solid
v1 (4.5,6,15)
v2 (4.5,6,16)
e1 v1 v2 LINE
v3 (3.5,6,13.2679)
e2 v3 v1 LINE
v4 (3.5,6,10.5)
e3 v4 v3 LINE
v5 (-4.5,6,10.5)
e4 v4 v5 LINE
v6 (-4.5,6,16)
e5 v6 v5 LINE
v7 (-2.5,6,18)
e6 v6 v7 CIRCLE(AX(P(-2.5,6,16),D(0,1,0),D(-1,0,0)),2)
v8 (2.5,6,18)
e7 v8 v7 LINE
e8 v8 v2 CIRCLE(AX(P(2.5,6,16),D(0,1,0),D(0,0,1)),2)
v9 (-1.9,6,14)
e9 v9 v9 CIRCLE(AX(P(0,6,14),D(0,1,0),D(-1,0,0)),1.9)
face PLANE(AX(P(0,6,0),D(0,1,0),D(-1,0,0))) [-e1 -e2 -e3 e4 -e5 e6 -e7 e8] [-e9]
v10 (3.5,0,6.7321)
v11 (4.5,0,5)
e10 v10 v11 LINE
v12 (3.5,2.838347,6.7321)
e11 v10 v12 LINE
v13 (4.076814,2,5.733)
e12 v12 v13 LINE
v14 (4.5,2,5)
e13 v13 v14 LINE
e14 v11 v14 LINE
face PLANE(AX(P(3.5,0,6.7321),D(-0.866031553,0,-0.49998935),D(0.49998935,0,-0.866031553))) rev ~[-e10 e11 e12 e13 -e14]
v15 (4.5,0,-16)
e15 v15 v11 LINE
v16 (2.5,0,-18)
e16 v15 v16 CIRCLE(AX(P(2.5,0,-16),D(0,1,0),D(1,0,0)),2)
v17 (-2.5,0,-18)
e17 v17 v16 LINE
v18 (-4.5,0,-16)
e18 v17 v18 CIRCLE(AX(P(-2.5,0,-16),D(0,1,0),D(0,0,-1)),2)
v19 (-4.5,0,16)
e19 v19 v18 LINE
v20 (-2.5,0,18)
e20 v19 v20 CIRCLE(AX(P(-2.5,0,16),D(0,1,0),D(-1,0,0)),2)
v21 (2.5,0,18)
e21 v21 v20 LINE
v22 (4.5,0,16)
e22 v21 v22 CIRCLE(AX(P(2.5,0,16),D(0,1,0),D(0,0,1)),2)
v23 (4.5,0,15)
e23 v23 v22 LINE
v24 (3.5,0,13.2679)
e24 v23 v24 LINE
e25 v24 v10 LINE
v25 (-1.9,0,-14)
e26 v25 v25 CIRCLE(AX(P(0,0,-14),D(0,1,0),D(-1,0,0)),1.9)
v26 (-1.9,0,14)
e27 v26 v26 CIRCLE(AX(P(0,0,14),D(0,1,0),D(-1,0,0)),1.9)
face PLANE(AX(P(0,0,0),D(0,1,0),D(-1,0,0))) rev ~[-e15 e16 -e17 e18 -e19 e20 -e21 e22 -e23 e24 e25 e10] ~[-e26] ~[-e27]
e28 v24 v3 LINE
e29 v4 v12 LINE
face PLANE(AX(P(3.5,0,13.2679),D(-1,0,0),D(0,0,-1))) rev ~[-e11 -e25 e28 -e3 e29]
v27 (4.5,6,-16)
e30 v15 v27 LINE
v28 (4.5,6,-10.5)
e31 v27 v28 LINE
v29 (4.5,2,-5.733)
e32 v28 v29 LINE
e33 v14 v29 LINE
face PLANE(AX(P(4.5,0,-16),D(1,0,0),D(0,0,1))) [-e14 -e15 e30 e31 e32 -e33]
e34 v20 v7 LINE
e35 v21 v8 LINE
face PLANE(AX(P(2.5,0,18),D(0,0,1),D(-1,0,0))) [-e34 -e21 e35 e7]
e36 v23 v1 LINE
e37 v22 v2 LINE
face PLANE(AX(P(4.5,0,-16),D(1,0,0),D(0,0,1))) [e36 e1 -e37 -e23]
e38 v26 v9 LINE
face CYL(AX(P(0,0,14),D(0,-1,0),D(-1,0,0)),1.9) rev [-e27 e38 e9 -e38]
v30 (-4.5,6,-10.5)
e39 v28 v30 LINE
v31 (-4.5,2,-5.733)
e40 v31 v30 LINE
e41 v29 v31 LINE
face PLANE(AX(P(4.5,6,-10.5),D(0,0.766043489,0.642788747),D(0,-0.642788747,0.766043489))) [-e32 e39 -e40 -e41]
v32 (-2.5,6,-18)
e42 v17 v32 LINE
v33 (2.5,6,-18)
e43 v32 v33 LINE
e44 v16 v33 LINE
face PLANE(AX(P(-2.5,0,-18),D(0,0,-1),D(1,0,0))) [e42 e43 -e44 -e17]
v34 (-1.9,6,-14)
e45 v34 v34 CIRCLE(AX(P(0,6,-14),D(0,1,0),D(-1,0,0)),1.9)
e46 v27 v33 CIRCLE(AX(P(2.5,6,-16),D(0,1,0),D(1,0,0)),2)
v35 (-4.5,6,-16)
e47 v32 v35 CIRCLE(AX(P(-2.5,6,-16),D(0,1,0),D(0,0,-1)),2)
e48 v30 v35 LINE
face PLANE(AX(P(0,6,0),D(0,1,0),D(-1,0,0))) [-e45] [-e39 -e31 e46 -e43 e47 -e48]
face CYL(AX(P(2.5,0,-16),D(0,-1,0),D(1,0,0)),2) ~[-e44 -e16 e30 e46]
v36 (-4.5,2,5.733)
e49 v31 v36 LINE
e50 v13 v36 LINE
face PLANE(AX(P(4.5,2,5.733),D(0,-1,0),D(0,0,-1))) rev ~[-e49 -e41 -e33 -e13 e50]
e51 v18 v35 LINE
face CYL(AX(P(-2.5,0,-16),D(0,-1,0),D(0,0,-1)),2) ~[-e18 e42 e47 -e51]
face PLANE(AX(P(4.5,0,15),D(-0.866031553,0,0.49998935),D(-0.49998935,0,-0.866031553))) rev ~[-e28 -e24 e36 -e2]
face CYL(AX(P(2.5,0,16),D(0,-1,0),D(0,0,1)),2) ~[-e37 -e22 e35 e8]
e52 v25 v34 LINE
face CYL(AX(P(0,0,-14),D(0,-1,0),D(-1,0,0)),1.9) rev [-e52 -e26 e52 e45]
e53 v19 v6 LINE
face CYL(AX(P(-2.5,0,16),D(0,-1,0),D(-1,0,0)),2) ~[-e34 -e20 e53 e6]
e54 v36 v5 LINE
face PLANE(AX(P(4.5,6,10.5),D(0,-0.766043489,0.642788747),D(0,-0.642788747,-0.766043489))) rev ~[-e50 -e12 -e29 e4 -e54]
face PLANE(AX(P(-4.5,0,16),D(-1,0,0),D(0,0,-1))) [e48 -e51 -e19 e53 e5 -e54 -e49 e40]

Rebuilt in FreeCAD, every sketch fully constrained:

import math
import FreeCAD as App
import Part
import Sketcher
from FreeCAD import Vector
Q = App.Units.Quantity


def add_polygon(sketch, points):
    """Adds a closed chain of lines whose ends are joined by coincident constraints."""
    first, n = sketch.GeometryCount, len(points)
    for a, b in zip(points, points[1:] + points[:1]):
        sketch.addGeometry(Part.LineSegment(App.Vector(*a, 0), App.Vector(*b, 0)), False)
    for i in range(n):
        sketch.addConstraint(Sketcher.Constraint("Coincident", first + i, 2, first + (i + 1) % n, 1))

doc = App.newDocument("Part")
body = doc.addObject("PartDesign::Body", "Body")

# Sketch on XZ plane
sketch1 = body.newObject("Sketcher::SketchObject", "Sketch")
sketch1.AttachmentSupport = (doc.getObject("XZ_Plane"), [""])
sketch1.MapMode = "FlatFace"
sketch1.addGeometry(Part.LineSegment(Vector(-2.5, 18, 0), Vector(2.5, 18, 0)), False)
sketch1.addGeometry(Part.ArcOfCircle(Part.Circle(Vector(2.5, 16, 0), Vector(0, 0, 1), 2), math.radians(0), math.radians(90)), False)
sketch1.addGeometry(Part.LineSegment(Vector(4.5, 16, 0), Vector(4.5, -16, 0)), False)
sketch1.addGeometry(Part.ArcOfCircle(Part.Circle(Vector(2.5, -16, 0), Vector(0, 0, 1), 2), math.radians(-90), math.radians(0)), False)
sketch1.addGeometry(Part.LineSegment(Vector(2.5, -18, 0), Vector(-2.5, -18, 0)), False)
sketch1.addGeometry(Part.ArcOfCircle(Part.Circle(Vector(-2.5, -16, 0), Vector(0, 0, 1), 2), math.radians(180), math.radians(270)), False)
sketch1.addGeometry(Part.LineSegment(Vector(-4.5, -16, 0), Vector(-4.5, 16, 0)), False)
sketch1.addGeometry(Part.ArcOfCircle(Part.Circle(Vector(-2.5, 16, 0), Vector(0, 0, 1), 2), math.radians(90), math.radians(180)), False)
sketch1.addGeometry(Part.Circle(Vector(0, -14, 0), Vector(0, 0, 1), 1.9), False)
sketch1.addGeometry(Part.Circle(Vector(0, 14, 0), Vector(0, 0, 1), 1.9), False)
sketch1.addConstraint(Sketcher.Constraint("Tangent", 0, 2, 1, 2))
sketch1.addConstraint(Sketcher.Constraint("Tangent", 1, 1, 2, 1))
sketch1.addConstraint(Sketcher.Constraint("Tangent", 2, 2, 3, 2))
sketch1.addConstraint(Sketcher.Constraint("Tangent", 3, 1, 4, 1))
sketch1.addConstraint(Sketcher.Constraint("Tangent", 4, 2, 5, 2))
sketch1.addConstraint(Sketcher.Constraint("Tangent", 5, 1, 6, 1))
sketch1.addConstraint(Sketcher.Constraint("Tangent", 6, 2, 7, 2))
sketch1.addConstraint(Sketcher.Constraint("Tangent", 7, 1, 0, 1))
sketch1.addConstraint(Sketcher.Constraint("Horizontal", 0))
sketch1.addConstraint(Sketcher.Constraint("Vertical", 2))
sketch1.addConstraint(Sketcher.Constraint("Horizontal", 4))
sketch1.addConstraint(Sketcher.Constraint("Vertical", 6))
sketch1.addConstraint(Sketcher.Constraint("Equal", 1, 3))
sketch1.addConstraint(Sketcher.Constraint("Equal", 3, 5))
sketch1.addConstraint(Sketcher.Constraint("Equal", 5, 7))
sketch1.addConstraint(Sketcher.Constraint("Equal", 8, 9))
sketch1.addConstraint(Sketcher.Constraint("Symmetric", 1, 3, 5, 3, -1, 1))
sketch1.addConstraint(Sketcher.Constraint("Symmetric", 8, 3, 9, 3, -1, 1))
sketch1.addConstraint(Sketcher.Constraint("PointOnObject", 8, 3, -2))
sketch1.addConstraint(Sketcher.Constraint("Radius", 1, Q("2 mm")))
sketch1.addConstraint(Sketcher.Constraint("Diameter", 8, Q("3.8 mm")))
sketch1.addConstraint(Sketcher.Constraint("DistanceY", 3, 3, 8, 3, Q("2 mm")))
sketch1.addConstraint(Sketcher.Constraint("DistanceY", 8, 3, 9, 3, Q("28 mm")))
sketch1.addConstraint(Sketcher.Constraint("DistanceX", 6, 2, 1, 1, Q("9 mm")))
pad1 = body.newObject("PartDesign::Pad", "Pad")
pad1.Profile = sketch1
pad1.Length = 6
pad1.Reversed = True

# Sketch on YZ plane
sketch2 = body.newObject("Sketcher::SketchObject", "Sketch001")
sketch2.AttachmentSupport = (doc.getObject("YZ_Plane"), [""])
sketch2.MapMode = "FlatFace"
sketch2.AttachmentOffset = App.Placement(Vector(0, 0, 4.5), App.Rotation())
add_polygon(sketch2, [(6, 10.5), (2, 5.733), (2, -5.733), (6, -10.5)])  # lines 0-3
sketch2.addConstraint(Sketcher.Constraint("Vertical", 1))
sketch2.addConstraint(Sketcher.Constraint("Vertical", 3))
sketch2.addConstraint(Sketcher.Constraint("Equal", 0, 2))
sketch2.addConstraint(Sketcher.Constraint("DistanceX", -1, 1, 0, 2, Q("2 mm")))
sketch2.addConstraint(Sketcher.Constraint("DistanceY", 2, 2, -1, 1, Q("10.5 mm")))
sketch2.addConstraint(Sketcher.Constraint("DistanceY", -1, 1, 3, 2, Q("10.5 mm")))
sketch2.addConstraint(Sketcher.Constraint("Angle", 0, Q("-130 deg")))
sketch2.addConstraint(Sketcher.Constraint("DistanceX", -1, 1, 2, 2, Q("6 mm")))
pocket1 = body.newObject("PartDesign::Pocket", "Pocket")
pocket1.Profile = sketch2
pocket1.Type = "ThroughAll"

# Sketch on XZ plane
sketch3 = body.newObject("Sketcher::SketchObject", "Sketch002")
sketch3.AttachmentSupport = (doc.getObject("XZ_Plane"), [""])
sketch3.MapMode = "FlatFace"
add_polygon(sketch3, [(4.5, 5), (4.5, 15), (3.5, 13.2679), (3.5, 6.7321)])  # lines 0-3
sketch3.addConstraint(Sketcher.Constraint("Vertical", 0))
sketch3.addConstraint(Sketcher.Constraint("Vertical", 2))
sketch3.addConstraint(Sketcher.Constraint("Equal", 1, 3))
sketch3.addConstraint(Sketcher.Constraint("DistanceY", 0, 1, 0, 2, Q("10 mm")))
sketch3.addConstraint(Sketcher.Constraint("DistanceX", 1, 2, 0, 2, Q("1 mm")))
sketch3.addConstraint(Sketcher.Constraint("Angle", 1, Q("-119.9993 deg")))
sketch3.addConstraint(Sketcher.Constraint("DistanceY", -1, 1, 0, 2, Q("15 mm")))
sketch3.addConstraint(Sketcher.Constraint("DistanceX", -1, 1, 0, 2, Q("4.5 mm")))
pocket2 = body.newObject("PartDesign::Pocket", "Pocket001")
pocket2.Profile = sketch3
pocket2.Type = "ThroughAll"

doc.recompute()
